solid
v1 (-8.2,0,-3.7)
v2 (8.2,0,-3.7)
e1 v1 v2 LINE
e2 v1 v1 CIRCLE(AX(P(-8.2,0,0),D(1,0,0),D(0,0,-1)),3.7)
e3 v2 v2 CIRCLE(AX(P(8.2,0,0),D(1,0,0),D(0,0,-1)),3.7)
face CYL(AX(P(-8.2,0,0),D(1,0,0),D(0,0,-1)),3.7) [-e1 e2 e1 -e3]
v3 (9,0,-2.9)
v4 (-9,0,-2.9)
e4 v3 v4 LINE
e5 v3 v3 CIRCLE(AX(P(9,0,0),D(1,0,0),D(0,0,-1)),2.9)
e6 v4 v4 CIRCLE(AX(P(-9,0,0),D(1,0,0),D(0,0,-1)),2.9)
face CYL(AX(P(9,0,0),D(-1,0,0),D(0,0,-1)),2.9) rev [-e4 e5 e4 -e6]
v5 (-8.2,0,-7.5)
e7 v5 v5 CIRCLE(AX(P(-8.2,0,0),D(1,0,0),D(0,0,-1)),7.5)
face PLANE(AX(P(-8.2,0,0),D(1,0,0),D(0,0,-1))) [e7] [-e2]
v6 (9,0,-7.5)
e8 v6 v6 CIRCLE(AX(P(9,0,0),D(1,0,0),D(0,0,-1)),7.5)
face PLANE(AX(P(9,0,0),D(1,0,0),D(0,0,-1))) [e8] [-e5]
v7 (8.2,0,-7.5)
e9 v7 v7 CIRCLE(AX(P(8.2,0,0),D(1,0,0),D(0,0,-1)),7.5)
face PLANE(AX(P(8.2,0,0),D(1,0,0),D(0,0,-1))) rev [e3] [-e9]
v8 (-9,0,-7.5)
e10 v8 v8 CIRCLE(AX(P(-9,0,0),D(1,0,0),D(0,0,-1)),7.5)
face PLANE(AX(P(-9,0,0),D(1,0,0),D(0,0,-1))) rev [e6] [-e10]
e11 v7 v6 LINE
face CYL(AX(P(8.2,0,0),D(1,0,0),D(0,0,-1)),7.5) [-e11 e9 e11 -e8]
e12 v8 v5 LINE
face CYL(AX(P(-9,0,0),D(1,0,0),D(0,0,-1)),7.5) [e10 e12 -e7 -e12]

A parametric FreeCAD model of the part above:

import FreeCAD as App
import Part
import Sketcher

V = App.Vector
Q = App.Units.Quantity


def add_polygon(sketch, points):
    """Adds a closed chain of lines whose ends are joined by coincident constraints."""
    first, n = sketch.GeometryCount, len(points)
    for a, b in zip(points, points[1:] + points[:1]):
        sketch.addGeometry(Part.LineSegment(App.Vector(*a, 0), App.Vector(*b, 0)), False)
    for i in range(n):
        sketch.addConstraint(Sketcher.Constraint("Coincident", first + i, 2, first + (i + 1) % n, 1))

doc = App.newDocument("Part")
params = doc.addObject("Spreadsheet::Sheet", "Params")
for row, (alias, value) in enumerate([
    ("sketch1_width", "18 mm"),
    ("sketch1_width2", "0.8 mm"),
    ("sketch1_height", "4.6 mm"),
    ("sketch1_height2", "3.8 mm"),
    ("revolution_angle", "360 deg"),
], start=1):
    params.set(f"A{row}", alias)
    params.set(f"B{row}", "=" + value)
    params.setAlias(f"B{row}", alias)

body = doc.addObject("PartDesign::Body", "Body")

# Sketch on XZ plane
sketch1 = body.newObject("Sketcher::SketchObject", "Sketch")
sketch1.AttachmentSupport = (doc.getObject("XZ_Plane"), [""])
sketch1.MapMode = "FlatFace"
add_polygon(sketch1, [(-9, -2.9), (-9, -7.5), (-8.2, -7.5), (-8.2, -3.7), (8.2, -3.7), (8.2, -7.5), (9, -7.5), (9, -2.9)])  # lines 0-7
sketch1.addConstraint([
    Sketcher.Constraint("Vertical", 0),
    Sketcher.Constraint("Horizontal", 1),
    Sketcher.Constraint("Vertical", 2),
    Sketcher.Constraint("Horizontal", 3),
    Sketcher.Constraint("Vertical", 4),
    Sketcher.Constraint("Horizontal", 5),
    Sketcher.Constraint("Vertical", 6),
    Sketcher.Constraint("Horizontal", 7),
    Sketcher.Constraint("Symmetric", 1, 2, 4, 2, -2),
    Sketcher.Constraint("Equal", 1, 5),
    Sketcher.Constraint("DistanceX", 7, 2, 7, 1, Q("18 mm")),
    Sketcher.Constraint("DistanceX", 1, 1, 1, 2, Q("0.8 mm")),
    Sketcher.Constraint("DistanceY", 0, 2, 0, 1, Q("4.6 mm")),
    Sketcher.Constraint("DistanceY", 2, 1, 2, 2, Q("3.8 mm")),
    Sketcher.Constraint("DistanceY", 0, 2, -1, 1, Q("7.5 mm")),
])
sketch1.setExpression("Constraints[18]", "Params.sketch1_width")
sketch1.setExpression("Constraints[19]", "Params.sketch1_width2")
sketch1.setExpression("Constraints[20]", "Params.sketch1_height")
sketch1.setExpression("Constraints[21]", "Params.sketch1_height2")
revolution = body.newObject("PartDesign::Revolution", "Revolution")
revolution.Profile = sketch1
revolution.ReferenceAxis = (sketch1, ["H_Axis"])
revolution.setExpression("Angle", "Params.revolution_angle")

doc.recompute()
